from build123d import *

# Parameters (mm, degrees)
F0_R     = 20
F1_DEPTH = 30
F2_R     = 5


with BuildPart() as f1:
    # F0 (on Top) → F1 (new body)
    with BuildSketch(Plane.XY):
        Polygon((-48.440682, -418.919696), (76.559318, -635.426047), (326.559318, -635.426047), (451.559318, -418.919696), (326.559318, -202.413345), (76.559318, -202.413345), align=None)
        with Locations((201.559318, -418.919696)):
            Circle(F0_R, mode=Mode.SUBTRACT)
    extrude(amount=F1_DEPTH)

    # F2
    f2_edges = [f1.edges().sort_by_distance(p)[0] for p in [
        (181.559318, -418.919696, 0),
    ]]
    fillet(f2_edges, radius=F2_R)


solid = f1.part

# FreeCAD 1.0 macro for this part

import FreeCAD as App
import Part
import Sketcher

V = App.Vector
Q = App.Units.Quantity


def edges_at(feature, points):
    """Names of the edges that pass closest to the given points."""
    edges = feature.Shape.Edges
    near = lambda p: min(range(len(edges)), key=lambda i: edges[i].distToShape(Part.Vertex(*p))[0])
    return sorted({f"Edge{near(p) + 1}" for p in points})

doc = App.newDocument("Part")
params = doc.addObject("Spreadsheet::Sheet", "Params")
for row, (alias, value) in enumerate([
    ("sketch1_diameter", "40 mm"),
    ("sketch1_width", "250 mm"),
    ("sketch1_length", "250 mm"),
    ("pad1_length", "30 mm"),
    ("fillet_radius", "5 mm"),
], start=1):
    params.set(f"A{row}", alias)
    params.set(f"B{row}", "=" + value)
    params.setAlias(f"B{row}", alias)

body = doc.addObject("PartDesign::Body", "Body")

# Sketch on XY plane
sketch1 = doc.addObject("Sketcher::SketchObject", "Sketch")
body.addObject(sketch1)
sketch1.AttachmentSupport = (doc.XY_Plane, [""])
sketch1.MapMode = "FlatFace"
sketch1.addGeometry(Part.LineSegment(V(-48, -419, 0), V(77, -635, 0)), False)
sketch1.addGeometry(Part.LineSegment(V(77, -635, 0), V(327, -635, 0)), False)
sketch1.addGeometry(Part.LineSegment(V(327, -635, 0), V(452, -419, 0)), False)
sketch1.addGeometry(Part.LineSegment(V(452, -419, 0), V(327, -202, 0)), False)
sketch1.addGeometry(Part.LineSegment(V(327, -202, 0), V(77, -202, 0)), False)
sketch1.addGeometry(Part.LineSegment(V(77, -202, 0), V(-48, -419, 0)), False)
sketch1.addGeometry(Part.Circle(V(202, -419, 0), V(0, 0, 1), 20), False)
sketch1.addConstraint(Sketcher.Constraint("Coincident", 0, 2, 1, 1))
sketch1.addConstraint(Sketcher.Constraint("Coincident", 1, 2, 2, 1))
sketch1.addConstraint(Sketcher.Constraint("Coincident", 2, 2, 3, 1))
sketch1.addConstraint(Sketcher.Constraint("Coincident", 3, 2, 4, 1))
sketch1.addConstraint(Sketcher.Constraint("Coincident", 4, 2, 5, 1))
sketch1.addConstraint(Sketcher.Constraint("Coincident", 5, 2, 0, 1))
sketch1.addConstraint(Sketcher.Constraint("Horizontal", 1))
sketch1.addConstraint(Sketcher.Constraint("Horizontal", 4))
sketch1.addConstraint(Sketcher.Constraint("Parallel", 0, 3))
sketch1.addConstraint(Sketcher.Constraint("Parallel", 2, 5))
sketch1.addConstraint(Sketcher.Constraint("Horizontal", 6, 3, 2, 2))
sketch1.addConstraint(Sketcher.Constraint("Horizontal", 2, 2, 5, 2))
sketch1.addConstraint(Sketcher.Constraint("Vertical", 1, 2, 3, 2))
sketch1.addConstraint(Sketcher.Constraint("Vertical", 0, 2, 4, 2))
sketch1.addConstraint(Sketcher.Constraint("Diameter", 6, 40.0))
sketch1.addConstraint(Sketcher.Constraint("DistanceX", 1, 1, 1, 2, 250.0))
sketch1.addConstraint(Sketcher.Constraint("Angle", 0, Q("-60 deg")))
sketch1.addConstraint(Sketcher.Constraint("Distance", 0, 250.0))
sketch1.addConstraint(Sketcher.Constraint("DistanceX", 0, 2, 6, 3, 125.0))
sketch1.addConstraint(Sketcher.Constraint("DistanceX", -1, 1, 0, 2, 76.559318))
sketch1.addConstraint(Sketcher.Constraint("DistanceY", 6, 3, -1, 1, 418.919696))
sketch1.setExpression("Constraints[14]", "Params.sketch1_diameter")
sketch1.setExpression("Constraints[15]", "Params.sketch1_width")
sketch1.setExpression("Constraints[17]", "Params.sketch1_length")
pad1 = doc.addObject("PartDesign::Pad", "Pad")
body.addObject(pad1)
pad1.Profile = sketch1
pad1.setExpression("Length", "Params.pad1_length")
doc.recompute()

fillet = doc.addObject("PartDesign::Fillet", "Fillet")
body.addObject(fillet)
fillet.Base = (pad1, edges_at(pad1, [(181.559, -418.92, 0)]))
fillet.setExpression("Radius", "Params.fillet_radius")

doc.recompute()
